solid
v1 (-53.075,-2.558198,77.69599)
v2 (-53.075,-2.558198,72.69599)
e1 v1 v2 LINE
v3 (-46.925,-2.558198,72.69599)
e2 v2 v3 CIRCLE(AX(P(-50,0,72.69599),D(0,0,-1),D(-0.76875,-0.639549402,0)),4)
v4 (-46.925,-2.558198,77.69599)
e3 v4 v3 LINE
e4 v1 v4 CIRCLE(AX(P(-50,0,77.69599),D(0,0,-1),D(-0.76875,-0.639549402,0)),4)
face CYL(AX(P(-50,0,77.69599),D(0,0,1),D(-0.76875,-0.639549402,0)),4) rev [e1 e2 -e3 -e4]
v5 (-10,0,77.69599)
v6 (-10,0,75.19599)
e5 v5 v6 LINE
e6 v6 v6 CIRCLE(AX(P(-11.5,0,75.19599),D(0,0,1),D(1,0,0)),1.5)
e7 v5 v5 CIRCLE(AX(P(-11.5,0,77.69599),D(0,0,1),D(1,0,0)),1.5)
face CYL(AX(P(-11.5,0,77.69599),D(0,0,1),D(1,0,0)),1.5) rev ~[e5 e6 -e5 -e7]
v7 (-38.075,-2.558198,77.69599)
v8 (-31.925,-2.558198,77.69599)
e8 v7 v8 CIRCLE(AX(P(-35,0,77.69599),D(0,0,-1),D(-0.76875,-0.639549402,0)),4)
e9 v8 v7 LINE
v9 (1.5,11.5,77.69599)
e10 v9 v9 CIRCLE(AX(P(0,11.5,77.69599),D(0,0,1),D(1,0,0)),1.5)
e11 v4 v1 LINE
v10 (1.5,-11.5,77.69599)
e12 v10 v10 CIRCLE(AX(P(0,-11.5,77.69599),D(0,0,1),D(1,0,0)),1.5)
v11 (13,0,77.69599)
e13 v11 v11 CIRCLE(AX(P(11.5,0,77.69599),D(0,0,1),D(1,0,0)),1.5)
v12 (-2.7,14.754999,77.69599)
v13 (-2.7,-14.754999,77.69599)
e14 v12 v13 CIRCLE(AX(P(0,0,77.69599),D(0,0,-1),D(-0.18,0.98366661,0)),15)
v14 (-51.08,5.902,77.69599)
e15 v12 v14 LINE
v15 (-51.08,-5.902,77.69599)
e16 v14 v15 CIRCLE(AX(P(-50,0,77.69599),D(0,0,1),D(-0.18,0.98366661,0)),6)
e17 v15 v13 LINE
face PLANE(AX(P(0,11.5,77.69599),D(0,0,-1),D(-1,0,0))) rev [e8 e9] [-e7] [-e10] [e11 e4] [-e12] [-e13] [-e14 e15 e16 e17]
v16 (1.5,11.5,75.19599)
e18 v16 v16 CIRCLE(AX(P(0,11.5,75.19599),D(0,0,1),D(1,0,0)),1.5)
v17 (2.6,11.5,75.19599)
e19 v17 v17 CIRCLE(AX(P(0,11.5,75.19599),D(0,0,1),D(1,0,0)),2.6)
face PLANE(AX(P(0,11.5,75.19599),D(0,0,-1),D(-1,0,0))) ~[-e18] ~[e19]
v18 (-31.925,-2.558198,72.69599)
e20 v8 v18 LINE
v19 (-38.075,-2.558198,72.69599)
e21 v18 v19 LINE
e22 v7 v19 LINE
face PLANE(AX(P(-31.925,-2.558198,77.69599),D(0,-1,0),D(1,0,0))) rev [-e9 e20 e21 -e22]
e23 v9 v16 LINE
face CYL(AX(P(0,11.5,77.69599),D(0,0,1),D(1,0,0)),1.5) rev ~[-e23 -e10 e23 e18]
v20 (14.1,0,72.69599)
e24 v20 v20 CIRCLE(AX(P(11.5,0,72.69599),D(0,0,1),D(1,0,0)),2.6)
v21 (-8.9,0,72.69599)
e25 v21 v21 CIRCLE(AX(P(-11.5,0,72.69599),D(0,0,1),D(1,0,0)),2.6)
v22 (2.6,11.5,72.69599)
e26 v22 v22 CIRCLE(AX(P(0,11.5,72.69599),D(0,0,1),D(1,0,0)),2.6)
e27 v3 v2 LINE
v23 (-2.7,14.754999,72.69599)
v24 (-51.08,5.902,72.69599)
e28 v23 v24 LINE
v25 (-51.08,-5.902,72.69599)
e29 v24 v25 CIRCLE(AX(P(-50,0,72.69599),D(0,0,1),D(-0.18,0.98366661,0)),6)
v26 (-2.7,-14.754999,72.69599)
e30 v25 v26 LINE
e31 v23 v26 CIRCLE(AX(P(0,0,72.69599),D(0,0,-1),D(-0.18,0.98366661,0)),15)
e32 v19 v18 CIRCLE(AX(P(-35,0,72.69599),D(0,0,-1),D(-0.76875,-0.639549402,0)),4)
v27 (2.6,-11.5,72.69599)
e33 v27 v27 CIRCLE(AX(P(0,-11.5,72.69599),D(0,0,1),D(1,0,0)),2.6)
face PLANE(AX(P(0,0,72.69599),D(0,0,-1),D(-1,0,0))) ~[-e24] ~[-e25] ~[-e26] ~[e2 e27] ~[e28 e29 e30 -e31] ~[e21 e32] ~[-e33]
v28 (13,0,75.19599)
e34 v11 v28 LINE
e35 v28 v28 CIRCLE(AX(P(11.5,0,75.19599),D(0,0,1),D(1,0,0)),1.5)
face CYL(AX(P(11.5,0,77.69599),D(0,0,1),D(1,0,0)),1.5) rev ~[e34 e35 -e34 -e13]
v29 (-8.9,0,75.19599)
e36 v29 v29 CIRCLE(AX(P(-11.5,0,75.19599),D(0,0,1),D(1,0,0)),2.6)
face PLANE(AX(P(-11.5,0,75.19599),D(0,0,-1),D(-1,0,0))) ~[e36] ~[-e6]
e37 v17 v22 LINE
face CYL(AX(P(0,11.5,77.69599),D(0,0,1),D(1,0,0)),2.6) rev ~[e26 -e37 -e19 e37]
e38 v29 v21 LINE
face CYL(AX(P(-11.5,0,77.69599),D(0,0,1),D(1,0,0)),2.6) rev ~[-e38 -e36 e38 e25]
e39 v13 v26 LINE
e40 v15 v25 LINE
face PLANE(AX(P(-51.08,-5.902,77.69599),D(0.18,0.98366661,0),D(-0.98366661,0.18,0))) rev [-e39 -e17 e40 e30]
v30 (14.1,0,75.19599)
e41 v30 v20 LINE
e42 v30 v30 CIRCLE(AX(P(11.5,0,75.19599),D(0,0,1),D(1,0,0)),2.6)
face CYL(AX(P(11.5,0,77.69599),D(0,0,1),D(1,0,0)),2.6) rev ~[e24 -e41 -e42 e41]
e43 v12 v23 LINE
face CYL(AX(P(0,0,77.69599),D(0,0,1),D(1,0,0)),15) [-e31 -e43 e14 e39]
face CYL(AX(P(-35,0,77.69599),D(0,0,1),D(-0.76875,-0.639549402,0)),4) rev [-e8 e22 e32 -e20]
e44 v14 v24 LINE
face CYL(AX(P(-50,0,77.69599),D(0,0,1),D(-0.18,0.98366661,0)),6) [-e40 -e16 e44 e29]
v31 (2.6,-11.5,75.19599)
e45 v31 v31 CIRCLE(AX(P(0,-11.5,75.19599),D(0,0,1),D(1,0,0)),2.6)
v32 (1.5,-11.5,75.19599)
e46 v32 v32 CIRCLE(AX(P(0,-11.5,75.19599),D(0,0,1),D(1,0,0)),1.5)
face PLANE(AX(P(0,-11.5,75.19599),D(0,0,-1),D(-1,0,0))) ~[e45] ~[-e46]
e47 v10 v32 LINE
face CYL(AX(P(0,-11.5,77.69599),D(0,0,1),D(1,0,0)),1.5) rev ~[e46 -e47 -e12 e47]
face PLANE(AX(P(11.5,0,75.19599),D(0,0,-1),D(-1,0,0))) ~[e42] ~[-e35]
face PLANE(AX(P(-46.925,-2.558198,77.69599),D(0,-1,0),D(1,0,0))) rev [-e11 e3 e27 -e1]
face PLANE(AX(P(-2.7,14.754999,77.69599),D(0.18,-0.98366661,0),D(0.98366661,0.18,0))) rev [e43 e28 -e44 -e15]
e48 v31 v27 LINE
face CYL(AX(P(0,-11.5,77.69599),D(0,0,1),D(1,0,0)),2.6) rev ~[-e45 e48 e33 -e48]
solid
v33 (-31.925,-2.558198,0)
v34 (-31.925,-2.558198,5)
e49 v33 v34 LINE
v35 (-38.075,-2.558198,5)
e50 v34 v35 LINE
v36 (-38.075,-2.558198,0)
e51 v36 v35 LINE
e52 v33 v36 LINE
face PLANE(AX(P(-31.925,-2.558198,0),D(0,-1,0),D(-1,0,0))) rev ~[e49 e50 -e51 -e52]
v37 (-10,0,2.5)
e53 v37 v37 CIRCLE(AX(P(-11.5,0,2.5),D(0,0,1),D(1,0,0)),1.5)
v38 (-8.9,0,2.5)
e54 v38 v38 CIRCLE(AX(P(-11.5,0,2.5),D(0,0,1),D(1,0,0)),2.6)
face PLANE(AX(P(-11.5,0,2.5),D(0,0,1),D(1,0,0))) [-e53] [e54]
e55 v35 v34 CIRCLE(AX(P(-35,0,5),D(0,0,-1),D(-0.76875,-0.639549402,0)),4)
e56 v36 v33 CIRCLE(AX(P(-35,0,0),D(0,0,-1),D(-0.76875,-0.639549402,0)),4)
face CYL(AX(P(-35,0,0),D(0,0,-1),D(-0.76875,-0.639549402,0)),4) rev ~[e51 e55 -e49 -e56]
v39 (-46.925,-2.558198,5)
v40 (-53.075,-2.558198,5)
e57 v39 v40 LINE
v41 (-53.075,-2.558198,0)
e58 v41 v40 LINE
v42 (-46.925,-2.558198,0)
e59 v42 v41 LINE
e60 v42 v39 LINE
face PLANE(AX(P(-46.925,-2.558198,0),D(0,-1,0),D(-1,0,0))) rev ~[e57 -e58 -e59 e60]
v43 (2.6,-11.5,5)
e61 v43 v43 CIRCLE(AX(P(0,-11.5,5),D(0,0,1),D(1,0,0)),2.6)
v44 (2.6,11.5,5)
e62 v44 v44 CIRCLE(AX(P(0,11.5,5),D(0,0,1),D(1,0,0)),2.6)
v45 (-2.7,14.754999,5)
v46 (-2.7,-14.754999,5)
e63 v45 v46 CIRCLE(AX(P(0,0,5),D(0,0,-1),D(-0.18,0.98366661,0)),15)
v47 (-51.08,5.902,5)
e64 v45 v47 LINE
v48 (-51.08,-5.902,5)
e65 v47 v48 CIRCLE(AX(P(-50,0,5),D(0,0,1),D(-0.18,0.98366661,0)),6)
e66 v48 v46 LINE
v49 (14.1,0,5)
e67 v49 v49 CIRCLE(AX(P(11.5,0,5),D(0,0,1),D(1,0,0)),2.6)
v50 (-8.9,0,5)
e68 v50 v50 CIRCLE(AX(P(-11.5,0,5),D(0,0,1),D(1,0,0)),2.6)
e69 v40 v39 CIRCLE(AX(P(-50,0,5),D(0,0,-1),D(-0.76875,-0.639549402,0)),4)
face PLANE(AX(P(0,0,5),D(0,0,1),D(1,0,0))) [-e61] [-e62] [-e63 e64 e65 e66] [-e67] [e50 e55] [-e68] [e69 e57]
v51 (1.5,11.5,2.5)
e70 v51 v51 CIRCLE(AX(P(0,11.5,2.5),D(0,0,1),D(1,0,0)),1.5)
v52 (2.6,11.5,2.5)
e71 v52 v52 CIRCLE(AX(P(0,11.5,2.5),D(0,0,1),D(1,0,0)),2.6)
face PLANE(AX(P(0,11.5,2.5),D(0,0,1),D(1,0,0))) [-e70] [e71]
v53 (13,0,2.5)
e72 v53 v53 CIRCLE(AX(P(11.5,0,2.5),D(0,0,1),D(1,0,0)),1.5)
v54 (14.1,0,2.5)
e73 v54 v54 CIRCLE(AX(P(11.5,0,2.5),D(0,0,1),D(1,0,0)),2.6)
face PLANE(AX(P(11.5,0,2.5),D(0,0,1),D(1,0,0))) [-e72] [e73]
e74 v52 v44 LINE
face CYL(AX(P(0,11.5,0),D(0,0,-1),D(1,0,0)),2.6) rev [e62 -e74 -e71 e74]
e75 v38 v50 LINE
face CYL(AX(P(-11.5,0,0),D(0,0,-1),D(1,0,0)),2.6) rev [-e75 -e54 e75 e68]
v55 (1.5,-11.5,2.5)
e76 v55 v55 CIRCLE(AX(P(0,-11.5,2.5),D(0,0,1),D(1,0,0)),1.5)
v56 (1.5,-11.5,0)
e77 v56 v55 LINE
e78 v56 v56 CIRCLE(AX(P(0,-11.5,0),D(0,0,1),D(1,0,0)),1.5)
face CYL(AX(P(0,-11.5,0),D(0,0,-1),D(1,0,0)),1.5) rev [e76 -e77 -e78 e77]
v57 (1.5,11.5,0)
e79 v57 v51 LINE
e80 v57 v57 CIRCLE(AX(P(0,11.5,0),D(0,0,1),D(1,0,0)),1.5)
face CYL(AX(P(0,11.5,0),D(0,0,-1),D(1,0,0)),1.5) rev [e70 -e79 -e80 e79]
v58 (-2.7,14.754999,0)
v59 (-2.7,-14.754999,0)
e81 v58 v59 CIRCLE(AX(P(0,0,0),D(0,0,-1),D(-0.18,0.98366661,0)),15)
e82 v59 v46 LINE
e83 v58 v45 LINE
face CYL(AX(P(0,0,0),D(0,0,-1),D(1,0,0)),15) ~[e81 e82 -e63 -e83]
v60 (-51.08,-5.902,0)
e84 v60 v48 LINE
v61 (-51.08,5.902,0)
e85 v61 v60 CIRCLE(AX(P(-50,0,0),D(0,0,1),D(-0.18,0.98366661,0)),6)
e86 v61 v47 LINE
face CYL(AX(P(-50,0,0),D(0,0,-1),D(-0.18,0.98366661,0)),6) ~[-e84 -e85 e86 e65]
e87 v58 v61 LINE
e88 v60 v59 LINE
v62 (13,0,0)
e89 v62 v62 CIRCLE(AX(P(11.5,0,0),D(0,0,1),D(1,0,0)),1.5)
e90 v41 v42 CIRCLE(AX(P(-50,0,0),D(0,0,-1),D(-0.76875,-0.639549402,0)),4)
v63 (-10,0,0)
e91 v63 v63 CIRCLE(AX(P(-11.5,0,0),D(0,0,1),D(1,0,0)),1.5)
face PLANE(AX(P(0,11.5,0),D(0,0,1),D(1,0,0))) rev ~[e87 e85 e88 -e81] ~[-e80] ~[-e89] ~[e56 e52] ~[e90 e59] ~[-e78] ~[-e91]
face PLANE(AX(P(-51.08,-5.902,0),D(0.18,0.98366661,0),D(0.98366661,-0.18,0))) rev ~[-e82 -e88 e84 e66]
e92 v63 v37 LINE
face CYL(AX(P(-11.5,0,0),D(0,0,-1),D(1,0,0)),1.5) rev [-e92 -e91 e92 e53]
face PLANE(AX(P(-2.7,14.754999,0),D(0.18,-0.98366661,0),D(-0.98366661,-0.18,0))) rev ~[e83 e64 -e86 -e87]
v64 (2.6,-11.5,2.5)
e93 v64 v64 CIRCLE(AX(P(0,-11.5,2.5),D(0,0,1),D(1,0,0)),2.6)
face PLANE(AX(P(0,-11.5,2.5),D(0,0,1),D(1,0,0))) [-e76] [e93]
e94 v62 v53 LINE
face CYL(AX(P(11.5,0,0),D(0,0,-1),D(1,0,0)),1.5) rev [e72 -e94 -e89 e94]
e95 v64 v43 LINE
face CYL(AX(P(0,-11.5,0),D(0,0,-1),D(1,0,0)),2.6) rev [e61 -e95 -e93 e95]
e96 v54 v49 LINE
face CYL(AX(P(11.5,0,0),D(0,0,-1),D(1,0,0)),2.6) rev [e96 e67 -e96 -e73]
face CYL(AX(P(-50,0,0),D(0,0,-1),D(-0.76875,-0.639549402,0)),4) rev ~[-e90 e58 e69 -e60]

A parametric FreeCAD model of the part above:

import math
import FreeCAD as App
import Part
import Sketcher
from FreeCAD import Vector

doc = App.newDocument("Part")
body = doc.addObject("PartDesign::Body", "Body")

# Sketch on XY plane
sketch1 = body.newObject("Sketcher::SketchObject", "Sketch")
sketch1.AttachmentSupport = (doc.getObject("XY_Plane"), [""])
sketch1.MapMode = "FlatFace"
sketch1.addGeometry(Part.Circle(Vector(0, 0, 0), Vector(0, 0, 1), 15), False)
sketch1.addGeometry(Part.Circle(Vector(0, -11.5, 0), Vector(0, 0, 1), 2.6), False)
sketch1.addGeometry(Part.Circle(Vector(-11.5, 0, 0), Vector(0, 0, 1), 2.6), False)
sketch1.addGeometry(Part.Circle(Vector(11.5, 0, 0), Vector(0, 0, 1), 2.6), False)
sketch1.addGeometry(Part.Circle(Vector(0, 11.5, 0), Vector(0, 0, 1), 2.6), False)
sketch1.addConstraint(Sketcher.Constraint("Coincident", 0, 3, -1, 1))
sketch1.addConstraint(Sketcher.Constraint("Equal", 1, 2))
sketch1.addConstraint(Sketcher.Constraint("Equal", 2, 3))
sketch1.addConstraint(Sketcher.Constraint("Equal", 3, 4))
sketch1.addConstraint(Sketcher.Constraint("Symmetric", 2, 3, 3, 3, -1, 1))
sketch1.addConstraint(Sketcher.Constraint("Symmetric", 1, 3, 4, 3, -1, 1))
sketch1.addConstraint(Sketcher.Constraint("PointOnObject", 1, 3, -2))
sketch1.addConstraint(Sketcher.Constraint("PointOnObject", 2, 3, -1))
sketch1.addConstraint(Sketcher.Constraint("Diameter", 0, 30.0))
sketch1.addConstraint(Sketcher.Constraint("Diameter", 1, 5.2))
sketch1.addConstraint(Sketcher.Constraint("DistanceX", 2, 3, 3, 3, 23.0))
sketch1.addConstraint(Sketcher.Constraint("DistanceY", 1, 3, 4, 3, 23.0))
pad1 = body.newObject("PartDesign::Pad", "Pad")
pad1.Profile = sketch1
pad1.Length = 5

# Sketch on XY plane
sketch2 = body.newObject("Sketcher::SketchObject", "Sketch001")
sketch2.AttachmentSupport = (doc.getObject("XY_Plane"), [""])
sketch2.MapMode = "FlatFace"
sketch2.addGeometry(Part.Circle(Vector(0, 11.5, 0), Vector(0, 0, 1), 2.6), False)
sketch2.addGeometry(Part.Circle(Vector(0, 11.5, 0), Vector(0, 0, 1), 1.5), False)
sketch2.addGeometry(Part.Circle(Vector(-11.5, 0, 0), Vector(0, 0, 1), 2.6), False)
sketch2.addGeometry(Part.Circle(Vector(-11.5, 0, 0), Vector(0, 0, 1), 1.5), False)
sketch2.addGeometry(Part.Circle(Vector(0, -11.5, 0), Vector(0, 0, 1), 2.6), False)
sketch2.addGeometry(Part.Circle(Vector(0, -11.5, 0), Vector(0, 0, 1), 1.5), False)
sketch2.addGeometry(Part.Circle(Vector(11.5, 0, 0), Vector(0, 0, 1), 2.6), False)
sketch2.addGeometry(Part.Circle(Vector(11.5, 0, 0), Vector(0, 0, 1), 1.5), False)
sketch2.addConstraint(Sketcher.Constraint("Coincident", 1, 3, 0, 3))
sketch2.addConstraint(Sketcher.Constraint("Coincident", 3, 3, 2, 3))
sketch2.addConstraint(Sketcher.Constraint("Coincident", 5, 3, 4, 3))
sketch2.addConstraint(Sketcher.Constraint("Coincident", 7, 3, 6, 3))
sketch2.addConstraint(Sketcher.Constraint("Equal", 0, 2))
sketch2.addConstraint(Sketcher.Constraint("Equal", 1, 3))
sketch2.addConstraint(Sketcher.Constraint("Equal", 2, 4))
sketch2.addConstraint(Sketcher.Constraint("Equal", 3, 5))
sketch2.addConstraint(Sketcher.Constraint("Equal", 4, 6))
sketch2.addConstraint(Sketcher.Constraint("Equal", 5, 7))
sketch2.addConstraint(Sketcher.Constraint("Symmetric", 0, 3, 4, 3, -1, 1))
sketch2.addConstraint(Sketcher.Constraint("Symmetric", 2, 3, 6, 3, -1, 1))
sketch2.addConstraint(Sketcher.Constraint("PointOnObject", 0, 3, -2))
sketch2.addConstraint(Sketcher.Constraint("PointOnObject", 2, 3, -1))
sketch2.addConstraint(Sketcher.Constraint("Diameter", 1, 3.0))
sketch2.addConstraint(Sketcher.Constraint("Diameter", 0, 5.2))
sketch2.addConstraint(Sketcher.Constraint("DistanceY", 4, 3, 0, 3, 23.0))
sketch2.addConstraint(Sketcher.Constraint("DistanceX", 2, 3, 6, 3, 23.0))
pad2 = body.newObject("PartDesign::Pad", "Pad001")
pad2.Profile = sketch2
pad2.Length = 2.5

# Sketch on XY plane
sketch3 = body.newObject("Sketcher::SketchObject", "Sketch002")
sketch3.AttachmentSupport = (doc.getObject("XY_Plane"), [""])
sketch3.MapMode = "FlatFace"
sketch3.addGeometry(Part.LineSegment(Vector(-2.7, 14.8, 0), Vector(-51.1, 5.9, 0)), False)
sketch3.addGeometry(Part.ArcOfCircle(Part.Circle(Vector(-50, 0, 0), Vector(0, 0, 1), 6), math.radians(100), math.radians(260)), False)
sketch3.addGeometry(Part.LineSegment(Vector(-51.1, -5.9, 0), Vector(-2.7, -14.8, 0)), False)
sketch3.addGeometry(Part.ArcOfCircle(Part.Circle(Vector(0, 0, 0), Vector(0, 0, 1), 15), math.radians(100), math.radians(260)), False)
sketch3.addGeometry(Part.ArcOfCircle(Part.Circle(Vector(-50, 0, 0), Vector(0, 0, 1), 4), math.radians(-40), math.radians(220)), False)
sketch3.addGeometry(Part.LineSegment(Vector(-46.9, -2.6, 0), Vector(-53.1, -2.6, 0)), False)
sketch3.addGeometry(Part.ArcOfCircle(Part.Circle(Vector(-35, 0, 0), Vector(0, 0, 1), 4), math.radians(-40), math.radians(220)), False)
sketch3.addGeometry(Part.LineSegment(Vector(-31.9, -2.6, 0), Vector(-38.1, -2.6, 0)), False)
sketch3.addConstraint(Sketcher.Constraint("Tangent", 0, 2, 1, 1))
sketch3.addConstraint(Sketcher.Constraint("Tangent", 1, 2, 2, 1))
sketch3.addConstraint(Sketcher.Constraint("Tangent", 2, 2, 3, 2))
sketch3.addConstraint(Sketcher.Constraint("Tangent", 3, 1, 0, 1))
sketch3.addConstraint(Sketcher.Constraint("Coincident", 4, 1, 5, 1))
sketch3.addConstraint(Sketcher.Constraint("Coincident", 5, 2, 4, 2))
sketch3.addConstraint(Sketcher.Constraint("Coincident", 6, 1, 7, 1))
sketch3.addConstraint(Sketcher.Constraint("Coincident", 7, 2, 6, 2))
sketch3.addConstraint(Sketcher.Constraint("Horizontal", 5))
sketch3.addConstraint(Sketcher.Constraint("Horizontal", 7))
sketch3.addConstraint(Sketcher.Constraint("Coincident", 3, 3, -1, 1))
sketch3.addConstraint(Sketcher.Constraint("Coincident", 4, 3, 1, 3))
sketch3.addConstraint(Sketcher.Constraint("Equal", 4, 6))
sketch3.addConstraint(Sketcher.Constraint("PointOnObject", 1, 3, -1))
sketch3.addConstraint(Sketcher.Constraint("PointOnObject", 6, 3, -1))
sketch3.addConstraint(Sketcher.Constraint("Horizontal", 5, 2, 6, 1))
sketch3.addConstraint(Sketcher.Constraint("Radius", 1, 6.0))
sketch3.addConstraint(Sketcher.Constraint("Radius", 3, 15.0))
sketch3.addConstraint(Sketcher.Constraint("Radius", 4, 4.0))
sketch3.addConstraint(Sketcher.Constraint("DistanceX", 1, 3, -1, 1, 50.0))
sketch3.addConstraint(Sketcher.Constraint("DistanceX", 6, 3, -1, 1, 35.0))
sketch3.addConstraint(Sketcher.Constraint("DistanceX", 5, 2, 5, 1, 6.15))
pad3 = body.newObject("PartDesign::Pad", "Pad002")
pad3.Profile = sketch3
pad3.Length = 5
body2 = doc.addObject("PartDesign::Body", "Body001")
doc.recompute()

mirroring = doc.addObject("Part::Mirroring", "Mirroring")
mirroring.Source = body
mirroring.Base = Vector(0, 0, 38.847995)
mirroring.Normal = Vector(0, 0, 1)
body2.BaseFeature = mirroring
doc.recompute()
mirroring.Visibility = False

doc.recompute()
